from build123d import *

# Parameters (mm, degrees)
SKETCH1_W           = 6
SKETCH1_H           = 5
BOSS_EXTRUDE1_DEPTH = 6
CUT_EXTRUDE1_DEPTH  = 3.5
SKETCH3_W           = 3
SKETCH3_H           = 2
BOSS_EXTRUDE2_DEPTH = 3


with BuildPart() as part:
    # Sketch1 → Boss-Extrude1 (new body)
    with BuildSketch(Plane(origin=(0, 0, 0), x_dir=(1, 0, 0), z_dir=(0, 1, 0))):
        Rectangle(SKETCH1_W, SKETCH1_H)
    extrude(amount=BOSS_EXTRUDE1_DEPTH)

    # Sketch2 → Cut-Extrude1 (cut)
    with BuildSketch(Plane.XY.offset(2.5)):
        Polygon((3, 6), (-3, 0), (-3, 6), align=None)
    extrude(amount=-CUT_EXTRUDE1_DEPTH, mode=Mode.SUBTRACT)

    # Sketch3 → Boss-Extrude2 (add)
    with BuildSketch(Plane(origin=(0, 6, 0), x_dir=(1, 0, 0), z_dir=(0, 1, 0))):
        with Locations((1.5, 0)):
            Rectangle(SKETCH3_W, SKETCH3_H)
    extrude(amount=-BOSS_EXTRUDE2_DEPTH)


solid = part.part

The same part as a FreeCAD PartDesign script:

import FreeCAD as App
import Part
import Sketcher

V = App.Vector
Q = App.Units.Quantity


def add_polygon(sketch, points):
    """Adds a closed chain of lines whose ends are joined by coincident constraints."""
    first, n = sketch.GeometryCount, len(points)
    for a, b in zip(points, points[1:] + points[:1]):
        sketch.addGeometry(Part.LineSegment(App.Vector(*a, 0), App.Vector(*b, 0)), False)
    for i in range(n):
        sketch.addConstraint(Sketcher.Constraint("Coincident", first + i, 2, first + (i + 1) % n, 1))

doc = App.newDocument("Part")
params = doc.addObject("Spreadsheet::Sheet", "Params")
for row, (alias, value) in enumerate([
    ("sketch1_width", "6 mm"),
    ("sketch1_height", "5 mm"),
    ("pad1_length", "6 mm"),
    ("sketch2_width", "6 mm"),
    ("pocket1_length", "3.5 mm"),
    ("sketch3_width", "3 mm"),
    ("sketch3_height", "2 mm"),
    ("pad2_length", "3 mm"),
], start=1):
    params.set(f"A{row}", alias)
    params.set(f"B{row}", "=" + value)
    params.setAlias(f"B{row}", alias)

body = doc.addObject("PartDesign::Body", "Body")

# Sketch on XZ plane
sketch1 = body.newObject("Sketcher::SketchObject", "Sketch")
sketch1.AttachmentSupport = (doc.getObject("XZ_Plane"), [""])
sketch1.MapMode = "FlatFace"
add_polygon(sketch1, [(-3, -2.5), (-3, 2.5), (3, 2.5), (3, -2.5)])  # lines 0-3
sketch1.addConstraint([
    Sketcher.Constraint("Vertical", 0),
    Sketcher.Constraint("Horizontal", 1),
    Sketcher.Constraint("Vertical", 2),
    Sketcher.Constraint("Horizontal", 3),
    Sketcher.Constraint("Symmetric", 0, 2, 2, 2, -1, 1),
    Sketcher.Constraint("DistanceX", 1, 1, 1, 2, Q("6 mm")),
    Sketcher.Constraint("DistanceY", 0, 1, 0, 2, Q("5 mm")),
])
sketch1.setExpression("Constraints[9]", "Params.sketch1_width")
sketch1.setExpression("Constraints[10]", "Params.sketch1_height")
pad1 = body.newObject("PartDesign::Pad", "Pad")
pad1.Profile = sketch1
pad1.setExpression("Length", "Params.pad1_length")
pad1.Reversed = True

# Sketch on XY plane
sketch2 = body.newObject("Sketcher::SketchObject", "Sketch001")
sketch2.AttachmentSupport = (doc.getObject("XY_Plane"), [""])
sketch2.MapMode = "FlatFace"
sketch2.AttachmentOffset = App.Placement(V(0, 0, 2.5), App.Rotation())
add_polygon(sketch2, [(-3, 0), (3, 6), (-3, 6)])  # lines 0-2
sketch2.addConstraint([
    Sketcher.Constraint("Horizontal", 1),
    Sketcher.Constraint("Vertical", 2),
    Sketcher.Constraint("PointOnObject", 2, 2, -1),
    Sketcher.Constraint("Equal", 1, 2),
    Sketcher.Constraint("DistanceX", 1, 2, 1, 1, Q("6 mm")),
    Sketcher.Constraint("DistanceX", -1, 1, 0, 2, Q("3 mm")),
])
sketch2.setExpression("Constraints[7]", "Params.sketch2_width")
pocket1 = body.newObject("PartDesign::Pocket", "Pocket")
pocket1.Profile = sketch2
pocket1.setExpression("Length", "Params.pocket1_length")

# Sketch on XZ plane
sketch3 = body.newObject("Sketcher::SketchObject", "Sketch002")
sketch3.AttachmentSupport = (doc.getObject("XZ_Plane"), [""])
sketch3.MapMode = "FlatFace"
sketch3.AttachmentOffset = App.Placement(V(0, 0, -6), App.Rotation())
add_polygon(sketch3, [(0, -1), (0, 1), (3, 1), (3, -1)])  # lines 0-3
sketch3.addConstraint([
    Sketcher.Constraint("Vertical", 0),
    Sketcher.Constraint("Horizontal", 1),
    Sketcher.Constraint("Vertical", 2),
    Sketcher.Constraint("Horizontal", 3),
    Sketcher.Constraint("Symmetric", 0, 2, 3, 2, -1, 1),
    Sketcher.Constraint("DistanceX", 1, 1, 1, 2, Q("3 mm")),
    Sketcher.Constraint("DistanceY", 0, 1, 0, 2, Q("2 mm")),
])
sketch3.setExpression("Constraints[9]", "Params.sketch3_width")
sketch3.setExpression("Constraints[10]", "Params.sketch3_height")
pad2 = body.newObject("PartDesign::Pad", "Pad001")
pad2.Profile = sketch3
pad2.setExpression("Length", "Params.pad2_length")

doc.recompute()
